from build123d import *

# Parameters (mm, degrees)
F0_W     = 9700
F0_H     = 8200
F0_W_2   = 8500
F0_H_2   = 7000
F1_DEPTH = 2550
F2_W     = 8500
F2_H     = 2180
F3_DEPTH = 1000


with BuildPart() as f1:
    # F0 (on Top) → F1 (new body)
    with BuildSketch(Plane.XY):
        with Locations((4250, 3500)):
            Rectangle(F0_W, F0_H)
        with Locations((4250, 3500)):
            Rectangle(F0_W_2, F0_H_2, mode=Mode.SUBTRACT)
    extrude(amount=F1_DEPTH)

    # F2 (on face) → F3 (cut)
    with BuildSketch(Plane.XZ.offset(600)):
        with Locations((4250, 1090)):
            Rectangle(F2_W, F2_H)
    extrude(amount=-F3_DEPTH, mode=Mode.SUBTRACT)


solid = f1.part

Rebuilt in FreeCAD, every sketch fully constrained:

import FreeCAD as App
import Part
import Sketcher
from FreeCAD import Vector
Q = App.Units.Quantity


def add_polygon(sketch, points):
    """Adds a closed chain of lines whose ends are joined by coincident constraints."""
    first, n = sketch.GeometryCount, len(points)
    for a, b in zip(points, points[1:] + points[:1]):
        sketch.addGeometry(Part.LineSegment(App.Vector(*a, 0), App.Vector(*b, 0)), False)
    for i in range(n):
        sketch.addConstraint(Sketcher.Constraint("Coincident", first + i, 2, first + (i + 1) % n, 1))

doc = App.newDocument("Part")
body = doc.addObject("PartDesign::Body", "Body")

sketch1 = body.newObject("Sketcher::SketchObject", "Sketch")
sketch1.AttachmentSupport = (doc.getObject("XY_Plane"), [""])
sketch1.MapMode = "FlatFace"
add_polygon(sketch1, [(-600, 7600), (-600, -600), (9100, -600), (9100, 7600)])
add_polygon(sketch1, [(8500, 0), (0, 0), (0, 7000), (8500, 7000)])
sketch1.addConstraint(Sketcher.Constraint("Vertical", 0))
sketch1.addConstraint(Sketcher.Constraint("Horizontal", 1))
sketch1.addConstraint(Sketcher.Constraint("Vertical", 2))
sketch1.addConstraint(Sketcher.Constraint("Horizontal", 3))
sketch1.addConstraint(Sketcher.Constraint("Horizontal", 4))
sketch1.addConstraint(Sketcher.Constraint("Vertical", 5))
sketch1.addConstraint(Sketcher.Constraint("Horizontal", 6))
sketch1.addConstraint(Sketcher.Constraint("Vertical", 7))
sketch1.addConstraint(Sketcher.Constraint("Coincident", 4, 2, -1, 1))
sketch1.addConstraint(Sketcher.Constraint("DistanceX", 1, 1, 1, 2, Q("9700 mm")))
sketch1.addConstraint(Sketcher.Constraint("DistanceX", 4, 2, 4, 1, Q("8500 mm")))
sketch1.addConstraint(Sketcher.Constraint("DistanceY", 0, 2, 0, 1, Q("8200 mm")))
sketch1.addConstraint(Sketcher.Constraint("DistanceY", 5, 1, 5, 2, Q("7000 mm")))
sketch1.addConstraint(Sketcher.Constraint("DistanceX", 0, 2, -1, 1, Q("600 mm")))
sketch1.addConstraint(Sketcher.Constraint("DistanceY", 0, 2, -1, 1, Q("600 mm")))
pad1 = body.newObject("PartDesign::Pad", "Pad")
pad1.Profile = sketch1
pad1.Length = 2550

sketch2 = body.newObject("Sketcher::SketchObject", "Sketch001")
sketch2.AttachmentSupport = (doc.getObject("XZ_Plane"), [""])
sketch2.MapMode = "FlatFace"
sketch2.AttachmentOffset = App.Placement(Vector(0, 0, 600), App.Rotation())
add_polygon(sketch2, [(0, 2180), (0, 0), (8500, 0), (8500, 2180)])
sketch2.addConstraint(Sketcher.Constraint("Vertical", 0))
sketch2.addConstraint(Sketcher.Constraint("Horizontal", 1))
sketch2.addConstraint(Sketcher.Constraint("Vertical", 2))
sketch2.addConstraint(Sketcher.Constraint("Horizontal", 3))
sketch2.addConstraint(Sketcher.Constraint("Coincident", 0, 2, -1, 1))
sketch2.addConstraint(Sketcher.Constraint("DistanceX", 1, 1, 1, 2, Q("8500 mm")))
sketch2.addConstraint(Sketcher.Constraint("DistanceY", 0, 2, 0, 1, Q("2180 mm")))
pocket1 = body.newObject("PartDesign::Pocket", "Pocket")
pocket1.Profile = sketch2
pocket1.Length = 1000

doc.recompute()
